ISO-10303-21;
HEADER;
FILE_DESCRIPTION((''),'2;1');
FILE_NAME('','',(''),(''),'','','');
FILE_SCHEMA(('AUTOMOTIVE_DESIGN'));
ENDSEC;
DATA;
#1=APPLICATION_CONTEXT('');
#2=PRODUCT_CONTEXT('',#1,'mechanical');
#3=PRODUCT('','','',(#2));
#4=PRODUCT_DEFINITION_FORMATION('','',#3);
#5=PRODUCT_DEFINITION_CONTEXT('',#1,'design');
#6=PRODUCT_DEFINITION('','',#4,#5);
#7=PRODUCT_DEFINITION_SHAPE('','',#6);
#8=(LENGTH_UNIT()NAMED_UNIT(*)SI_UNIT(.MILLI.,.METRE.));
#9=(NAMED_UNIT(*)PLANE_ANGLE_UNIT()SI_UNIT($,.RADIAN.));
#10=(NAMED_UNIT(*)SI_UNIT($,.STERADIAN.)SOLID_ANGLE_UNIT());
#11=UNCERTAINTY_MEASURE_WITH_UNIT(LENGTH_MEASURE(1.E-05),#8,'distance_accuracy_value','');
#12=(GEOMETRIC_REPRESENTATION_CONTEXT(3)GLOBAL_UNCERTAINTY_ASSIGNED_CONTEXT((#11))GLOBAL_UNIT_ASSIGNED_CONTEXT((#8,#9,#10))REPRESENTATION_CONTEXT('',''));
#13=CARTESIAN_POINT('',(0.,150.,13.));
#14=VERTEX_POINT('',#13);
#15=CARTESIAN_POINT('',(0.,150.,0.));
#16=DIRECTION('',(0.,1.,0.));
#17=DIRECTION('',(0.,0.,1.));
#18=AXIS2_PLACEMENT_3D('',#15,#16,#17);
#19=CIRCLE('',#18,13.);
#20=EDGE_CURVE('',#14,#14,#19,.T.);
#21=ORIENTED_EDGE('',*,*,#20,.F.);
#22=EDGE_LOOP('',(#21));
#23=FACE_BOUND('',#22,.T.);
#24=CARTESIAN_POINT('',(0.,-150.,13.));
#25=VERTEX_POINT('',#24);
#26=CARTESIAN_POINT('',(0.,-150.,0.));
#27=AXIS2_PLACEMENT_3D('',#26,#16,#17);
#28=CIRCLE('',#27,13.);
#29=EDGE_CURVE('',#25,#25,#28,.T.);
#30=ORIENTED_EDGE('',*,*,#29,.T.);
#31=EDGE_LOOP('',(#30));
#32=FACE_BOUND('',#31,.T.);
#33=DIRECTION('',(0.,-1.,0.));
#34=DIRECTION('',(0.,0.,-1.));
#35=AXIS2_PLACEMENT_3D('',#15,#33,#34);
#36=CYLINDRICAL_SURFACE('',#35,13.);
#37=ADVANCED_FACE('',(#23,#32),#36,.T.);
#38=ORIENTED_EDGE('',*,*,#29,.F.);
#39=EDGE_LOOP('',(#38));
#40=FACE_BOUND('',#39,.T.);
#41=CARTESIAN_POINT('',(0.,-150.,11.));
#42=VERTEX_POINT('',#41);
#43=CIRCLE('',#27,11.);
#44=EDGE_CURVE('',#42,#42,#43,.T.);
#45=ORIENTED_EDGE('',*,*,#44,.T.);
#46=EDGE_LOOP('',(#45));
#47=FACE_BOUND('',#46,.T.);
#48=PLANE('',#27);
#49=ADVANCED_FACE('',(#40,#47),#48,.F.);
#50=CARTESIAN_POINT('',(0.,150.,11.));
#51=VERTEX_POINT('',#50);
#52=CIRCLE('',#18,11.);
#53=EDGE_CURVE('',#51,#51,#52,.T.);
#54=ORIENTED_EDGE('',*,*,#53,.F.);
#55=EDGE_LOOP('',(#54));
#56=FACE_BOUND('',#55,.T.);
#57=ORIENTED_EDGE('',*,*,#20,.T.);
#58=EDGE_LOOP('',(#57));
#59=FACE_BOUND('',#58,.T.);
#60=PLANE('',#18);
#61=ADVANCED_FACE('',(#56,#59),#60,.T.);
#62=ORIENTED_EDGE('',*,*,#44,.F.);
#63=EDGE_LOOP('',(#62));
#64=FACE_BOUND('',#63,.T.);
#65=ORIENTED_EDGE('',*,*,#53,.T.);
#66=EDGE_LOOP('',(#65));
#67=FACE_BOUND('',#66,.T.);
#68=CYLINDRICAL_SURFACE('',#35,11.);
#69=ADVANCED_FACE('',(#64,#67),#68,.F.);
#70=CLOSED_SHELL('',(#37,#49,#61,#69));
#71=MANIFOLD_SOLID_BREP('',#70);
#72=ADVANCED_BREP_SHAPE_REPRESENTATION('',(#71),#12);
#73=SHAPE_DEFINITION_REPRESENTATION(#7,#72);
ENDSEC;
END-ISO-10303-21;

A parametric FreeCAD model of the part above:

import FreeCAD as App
import Part
import Sketcher
from FreeCAD import Vector

doc = App.newDocument("Part")
body = doc.addObject("PartDesign::Body", "Body")

# Sketch on XZ plane
sketch1 = doc.addObject("Sketcher::SketchObject", "Sketch")
body.addObject(sketch1)
sketch1.AttachmentSupport = (doc.XZ_Plane, [""])
sketch1.MapMode = "FlatFace"
sketch1.addGeometry([
    Part.Circle(Vector(0, 0, 0), Vector(0, 0, 1), 13),
    Part.Circle(Vector(0, 0, 0), Vector(0, 0, 1), 11),
], False)
sketch1.addConstraint([
    Sketcher.Constraint("Coincident", 0, 3, -1, 1),
    Sketcher.Constraint("Coincident", 1, 3, -1, 1),
    Sketcher.Constraint("Diameter", 0, 26.0),
    Sketcher.Constraint("Diameter", 1, 22.0),
])
pad1 = doc.addObject("PartDesign::Pad", "Pad")
body.addObject(pad1)
pad1.Profile = sketch1
pad1.Length = 300
pad1.Midplane = True

doc.recompute()
